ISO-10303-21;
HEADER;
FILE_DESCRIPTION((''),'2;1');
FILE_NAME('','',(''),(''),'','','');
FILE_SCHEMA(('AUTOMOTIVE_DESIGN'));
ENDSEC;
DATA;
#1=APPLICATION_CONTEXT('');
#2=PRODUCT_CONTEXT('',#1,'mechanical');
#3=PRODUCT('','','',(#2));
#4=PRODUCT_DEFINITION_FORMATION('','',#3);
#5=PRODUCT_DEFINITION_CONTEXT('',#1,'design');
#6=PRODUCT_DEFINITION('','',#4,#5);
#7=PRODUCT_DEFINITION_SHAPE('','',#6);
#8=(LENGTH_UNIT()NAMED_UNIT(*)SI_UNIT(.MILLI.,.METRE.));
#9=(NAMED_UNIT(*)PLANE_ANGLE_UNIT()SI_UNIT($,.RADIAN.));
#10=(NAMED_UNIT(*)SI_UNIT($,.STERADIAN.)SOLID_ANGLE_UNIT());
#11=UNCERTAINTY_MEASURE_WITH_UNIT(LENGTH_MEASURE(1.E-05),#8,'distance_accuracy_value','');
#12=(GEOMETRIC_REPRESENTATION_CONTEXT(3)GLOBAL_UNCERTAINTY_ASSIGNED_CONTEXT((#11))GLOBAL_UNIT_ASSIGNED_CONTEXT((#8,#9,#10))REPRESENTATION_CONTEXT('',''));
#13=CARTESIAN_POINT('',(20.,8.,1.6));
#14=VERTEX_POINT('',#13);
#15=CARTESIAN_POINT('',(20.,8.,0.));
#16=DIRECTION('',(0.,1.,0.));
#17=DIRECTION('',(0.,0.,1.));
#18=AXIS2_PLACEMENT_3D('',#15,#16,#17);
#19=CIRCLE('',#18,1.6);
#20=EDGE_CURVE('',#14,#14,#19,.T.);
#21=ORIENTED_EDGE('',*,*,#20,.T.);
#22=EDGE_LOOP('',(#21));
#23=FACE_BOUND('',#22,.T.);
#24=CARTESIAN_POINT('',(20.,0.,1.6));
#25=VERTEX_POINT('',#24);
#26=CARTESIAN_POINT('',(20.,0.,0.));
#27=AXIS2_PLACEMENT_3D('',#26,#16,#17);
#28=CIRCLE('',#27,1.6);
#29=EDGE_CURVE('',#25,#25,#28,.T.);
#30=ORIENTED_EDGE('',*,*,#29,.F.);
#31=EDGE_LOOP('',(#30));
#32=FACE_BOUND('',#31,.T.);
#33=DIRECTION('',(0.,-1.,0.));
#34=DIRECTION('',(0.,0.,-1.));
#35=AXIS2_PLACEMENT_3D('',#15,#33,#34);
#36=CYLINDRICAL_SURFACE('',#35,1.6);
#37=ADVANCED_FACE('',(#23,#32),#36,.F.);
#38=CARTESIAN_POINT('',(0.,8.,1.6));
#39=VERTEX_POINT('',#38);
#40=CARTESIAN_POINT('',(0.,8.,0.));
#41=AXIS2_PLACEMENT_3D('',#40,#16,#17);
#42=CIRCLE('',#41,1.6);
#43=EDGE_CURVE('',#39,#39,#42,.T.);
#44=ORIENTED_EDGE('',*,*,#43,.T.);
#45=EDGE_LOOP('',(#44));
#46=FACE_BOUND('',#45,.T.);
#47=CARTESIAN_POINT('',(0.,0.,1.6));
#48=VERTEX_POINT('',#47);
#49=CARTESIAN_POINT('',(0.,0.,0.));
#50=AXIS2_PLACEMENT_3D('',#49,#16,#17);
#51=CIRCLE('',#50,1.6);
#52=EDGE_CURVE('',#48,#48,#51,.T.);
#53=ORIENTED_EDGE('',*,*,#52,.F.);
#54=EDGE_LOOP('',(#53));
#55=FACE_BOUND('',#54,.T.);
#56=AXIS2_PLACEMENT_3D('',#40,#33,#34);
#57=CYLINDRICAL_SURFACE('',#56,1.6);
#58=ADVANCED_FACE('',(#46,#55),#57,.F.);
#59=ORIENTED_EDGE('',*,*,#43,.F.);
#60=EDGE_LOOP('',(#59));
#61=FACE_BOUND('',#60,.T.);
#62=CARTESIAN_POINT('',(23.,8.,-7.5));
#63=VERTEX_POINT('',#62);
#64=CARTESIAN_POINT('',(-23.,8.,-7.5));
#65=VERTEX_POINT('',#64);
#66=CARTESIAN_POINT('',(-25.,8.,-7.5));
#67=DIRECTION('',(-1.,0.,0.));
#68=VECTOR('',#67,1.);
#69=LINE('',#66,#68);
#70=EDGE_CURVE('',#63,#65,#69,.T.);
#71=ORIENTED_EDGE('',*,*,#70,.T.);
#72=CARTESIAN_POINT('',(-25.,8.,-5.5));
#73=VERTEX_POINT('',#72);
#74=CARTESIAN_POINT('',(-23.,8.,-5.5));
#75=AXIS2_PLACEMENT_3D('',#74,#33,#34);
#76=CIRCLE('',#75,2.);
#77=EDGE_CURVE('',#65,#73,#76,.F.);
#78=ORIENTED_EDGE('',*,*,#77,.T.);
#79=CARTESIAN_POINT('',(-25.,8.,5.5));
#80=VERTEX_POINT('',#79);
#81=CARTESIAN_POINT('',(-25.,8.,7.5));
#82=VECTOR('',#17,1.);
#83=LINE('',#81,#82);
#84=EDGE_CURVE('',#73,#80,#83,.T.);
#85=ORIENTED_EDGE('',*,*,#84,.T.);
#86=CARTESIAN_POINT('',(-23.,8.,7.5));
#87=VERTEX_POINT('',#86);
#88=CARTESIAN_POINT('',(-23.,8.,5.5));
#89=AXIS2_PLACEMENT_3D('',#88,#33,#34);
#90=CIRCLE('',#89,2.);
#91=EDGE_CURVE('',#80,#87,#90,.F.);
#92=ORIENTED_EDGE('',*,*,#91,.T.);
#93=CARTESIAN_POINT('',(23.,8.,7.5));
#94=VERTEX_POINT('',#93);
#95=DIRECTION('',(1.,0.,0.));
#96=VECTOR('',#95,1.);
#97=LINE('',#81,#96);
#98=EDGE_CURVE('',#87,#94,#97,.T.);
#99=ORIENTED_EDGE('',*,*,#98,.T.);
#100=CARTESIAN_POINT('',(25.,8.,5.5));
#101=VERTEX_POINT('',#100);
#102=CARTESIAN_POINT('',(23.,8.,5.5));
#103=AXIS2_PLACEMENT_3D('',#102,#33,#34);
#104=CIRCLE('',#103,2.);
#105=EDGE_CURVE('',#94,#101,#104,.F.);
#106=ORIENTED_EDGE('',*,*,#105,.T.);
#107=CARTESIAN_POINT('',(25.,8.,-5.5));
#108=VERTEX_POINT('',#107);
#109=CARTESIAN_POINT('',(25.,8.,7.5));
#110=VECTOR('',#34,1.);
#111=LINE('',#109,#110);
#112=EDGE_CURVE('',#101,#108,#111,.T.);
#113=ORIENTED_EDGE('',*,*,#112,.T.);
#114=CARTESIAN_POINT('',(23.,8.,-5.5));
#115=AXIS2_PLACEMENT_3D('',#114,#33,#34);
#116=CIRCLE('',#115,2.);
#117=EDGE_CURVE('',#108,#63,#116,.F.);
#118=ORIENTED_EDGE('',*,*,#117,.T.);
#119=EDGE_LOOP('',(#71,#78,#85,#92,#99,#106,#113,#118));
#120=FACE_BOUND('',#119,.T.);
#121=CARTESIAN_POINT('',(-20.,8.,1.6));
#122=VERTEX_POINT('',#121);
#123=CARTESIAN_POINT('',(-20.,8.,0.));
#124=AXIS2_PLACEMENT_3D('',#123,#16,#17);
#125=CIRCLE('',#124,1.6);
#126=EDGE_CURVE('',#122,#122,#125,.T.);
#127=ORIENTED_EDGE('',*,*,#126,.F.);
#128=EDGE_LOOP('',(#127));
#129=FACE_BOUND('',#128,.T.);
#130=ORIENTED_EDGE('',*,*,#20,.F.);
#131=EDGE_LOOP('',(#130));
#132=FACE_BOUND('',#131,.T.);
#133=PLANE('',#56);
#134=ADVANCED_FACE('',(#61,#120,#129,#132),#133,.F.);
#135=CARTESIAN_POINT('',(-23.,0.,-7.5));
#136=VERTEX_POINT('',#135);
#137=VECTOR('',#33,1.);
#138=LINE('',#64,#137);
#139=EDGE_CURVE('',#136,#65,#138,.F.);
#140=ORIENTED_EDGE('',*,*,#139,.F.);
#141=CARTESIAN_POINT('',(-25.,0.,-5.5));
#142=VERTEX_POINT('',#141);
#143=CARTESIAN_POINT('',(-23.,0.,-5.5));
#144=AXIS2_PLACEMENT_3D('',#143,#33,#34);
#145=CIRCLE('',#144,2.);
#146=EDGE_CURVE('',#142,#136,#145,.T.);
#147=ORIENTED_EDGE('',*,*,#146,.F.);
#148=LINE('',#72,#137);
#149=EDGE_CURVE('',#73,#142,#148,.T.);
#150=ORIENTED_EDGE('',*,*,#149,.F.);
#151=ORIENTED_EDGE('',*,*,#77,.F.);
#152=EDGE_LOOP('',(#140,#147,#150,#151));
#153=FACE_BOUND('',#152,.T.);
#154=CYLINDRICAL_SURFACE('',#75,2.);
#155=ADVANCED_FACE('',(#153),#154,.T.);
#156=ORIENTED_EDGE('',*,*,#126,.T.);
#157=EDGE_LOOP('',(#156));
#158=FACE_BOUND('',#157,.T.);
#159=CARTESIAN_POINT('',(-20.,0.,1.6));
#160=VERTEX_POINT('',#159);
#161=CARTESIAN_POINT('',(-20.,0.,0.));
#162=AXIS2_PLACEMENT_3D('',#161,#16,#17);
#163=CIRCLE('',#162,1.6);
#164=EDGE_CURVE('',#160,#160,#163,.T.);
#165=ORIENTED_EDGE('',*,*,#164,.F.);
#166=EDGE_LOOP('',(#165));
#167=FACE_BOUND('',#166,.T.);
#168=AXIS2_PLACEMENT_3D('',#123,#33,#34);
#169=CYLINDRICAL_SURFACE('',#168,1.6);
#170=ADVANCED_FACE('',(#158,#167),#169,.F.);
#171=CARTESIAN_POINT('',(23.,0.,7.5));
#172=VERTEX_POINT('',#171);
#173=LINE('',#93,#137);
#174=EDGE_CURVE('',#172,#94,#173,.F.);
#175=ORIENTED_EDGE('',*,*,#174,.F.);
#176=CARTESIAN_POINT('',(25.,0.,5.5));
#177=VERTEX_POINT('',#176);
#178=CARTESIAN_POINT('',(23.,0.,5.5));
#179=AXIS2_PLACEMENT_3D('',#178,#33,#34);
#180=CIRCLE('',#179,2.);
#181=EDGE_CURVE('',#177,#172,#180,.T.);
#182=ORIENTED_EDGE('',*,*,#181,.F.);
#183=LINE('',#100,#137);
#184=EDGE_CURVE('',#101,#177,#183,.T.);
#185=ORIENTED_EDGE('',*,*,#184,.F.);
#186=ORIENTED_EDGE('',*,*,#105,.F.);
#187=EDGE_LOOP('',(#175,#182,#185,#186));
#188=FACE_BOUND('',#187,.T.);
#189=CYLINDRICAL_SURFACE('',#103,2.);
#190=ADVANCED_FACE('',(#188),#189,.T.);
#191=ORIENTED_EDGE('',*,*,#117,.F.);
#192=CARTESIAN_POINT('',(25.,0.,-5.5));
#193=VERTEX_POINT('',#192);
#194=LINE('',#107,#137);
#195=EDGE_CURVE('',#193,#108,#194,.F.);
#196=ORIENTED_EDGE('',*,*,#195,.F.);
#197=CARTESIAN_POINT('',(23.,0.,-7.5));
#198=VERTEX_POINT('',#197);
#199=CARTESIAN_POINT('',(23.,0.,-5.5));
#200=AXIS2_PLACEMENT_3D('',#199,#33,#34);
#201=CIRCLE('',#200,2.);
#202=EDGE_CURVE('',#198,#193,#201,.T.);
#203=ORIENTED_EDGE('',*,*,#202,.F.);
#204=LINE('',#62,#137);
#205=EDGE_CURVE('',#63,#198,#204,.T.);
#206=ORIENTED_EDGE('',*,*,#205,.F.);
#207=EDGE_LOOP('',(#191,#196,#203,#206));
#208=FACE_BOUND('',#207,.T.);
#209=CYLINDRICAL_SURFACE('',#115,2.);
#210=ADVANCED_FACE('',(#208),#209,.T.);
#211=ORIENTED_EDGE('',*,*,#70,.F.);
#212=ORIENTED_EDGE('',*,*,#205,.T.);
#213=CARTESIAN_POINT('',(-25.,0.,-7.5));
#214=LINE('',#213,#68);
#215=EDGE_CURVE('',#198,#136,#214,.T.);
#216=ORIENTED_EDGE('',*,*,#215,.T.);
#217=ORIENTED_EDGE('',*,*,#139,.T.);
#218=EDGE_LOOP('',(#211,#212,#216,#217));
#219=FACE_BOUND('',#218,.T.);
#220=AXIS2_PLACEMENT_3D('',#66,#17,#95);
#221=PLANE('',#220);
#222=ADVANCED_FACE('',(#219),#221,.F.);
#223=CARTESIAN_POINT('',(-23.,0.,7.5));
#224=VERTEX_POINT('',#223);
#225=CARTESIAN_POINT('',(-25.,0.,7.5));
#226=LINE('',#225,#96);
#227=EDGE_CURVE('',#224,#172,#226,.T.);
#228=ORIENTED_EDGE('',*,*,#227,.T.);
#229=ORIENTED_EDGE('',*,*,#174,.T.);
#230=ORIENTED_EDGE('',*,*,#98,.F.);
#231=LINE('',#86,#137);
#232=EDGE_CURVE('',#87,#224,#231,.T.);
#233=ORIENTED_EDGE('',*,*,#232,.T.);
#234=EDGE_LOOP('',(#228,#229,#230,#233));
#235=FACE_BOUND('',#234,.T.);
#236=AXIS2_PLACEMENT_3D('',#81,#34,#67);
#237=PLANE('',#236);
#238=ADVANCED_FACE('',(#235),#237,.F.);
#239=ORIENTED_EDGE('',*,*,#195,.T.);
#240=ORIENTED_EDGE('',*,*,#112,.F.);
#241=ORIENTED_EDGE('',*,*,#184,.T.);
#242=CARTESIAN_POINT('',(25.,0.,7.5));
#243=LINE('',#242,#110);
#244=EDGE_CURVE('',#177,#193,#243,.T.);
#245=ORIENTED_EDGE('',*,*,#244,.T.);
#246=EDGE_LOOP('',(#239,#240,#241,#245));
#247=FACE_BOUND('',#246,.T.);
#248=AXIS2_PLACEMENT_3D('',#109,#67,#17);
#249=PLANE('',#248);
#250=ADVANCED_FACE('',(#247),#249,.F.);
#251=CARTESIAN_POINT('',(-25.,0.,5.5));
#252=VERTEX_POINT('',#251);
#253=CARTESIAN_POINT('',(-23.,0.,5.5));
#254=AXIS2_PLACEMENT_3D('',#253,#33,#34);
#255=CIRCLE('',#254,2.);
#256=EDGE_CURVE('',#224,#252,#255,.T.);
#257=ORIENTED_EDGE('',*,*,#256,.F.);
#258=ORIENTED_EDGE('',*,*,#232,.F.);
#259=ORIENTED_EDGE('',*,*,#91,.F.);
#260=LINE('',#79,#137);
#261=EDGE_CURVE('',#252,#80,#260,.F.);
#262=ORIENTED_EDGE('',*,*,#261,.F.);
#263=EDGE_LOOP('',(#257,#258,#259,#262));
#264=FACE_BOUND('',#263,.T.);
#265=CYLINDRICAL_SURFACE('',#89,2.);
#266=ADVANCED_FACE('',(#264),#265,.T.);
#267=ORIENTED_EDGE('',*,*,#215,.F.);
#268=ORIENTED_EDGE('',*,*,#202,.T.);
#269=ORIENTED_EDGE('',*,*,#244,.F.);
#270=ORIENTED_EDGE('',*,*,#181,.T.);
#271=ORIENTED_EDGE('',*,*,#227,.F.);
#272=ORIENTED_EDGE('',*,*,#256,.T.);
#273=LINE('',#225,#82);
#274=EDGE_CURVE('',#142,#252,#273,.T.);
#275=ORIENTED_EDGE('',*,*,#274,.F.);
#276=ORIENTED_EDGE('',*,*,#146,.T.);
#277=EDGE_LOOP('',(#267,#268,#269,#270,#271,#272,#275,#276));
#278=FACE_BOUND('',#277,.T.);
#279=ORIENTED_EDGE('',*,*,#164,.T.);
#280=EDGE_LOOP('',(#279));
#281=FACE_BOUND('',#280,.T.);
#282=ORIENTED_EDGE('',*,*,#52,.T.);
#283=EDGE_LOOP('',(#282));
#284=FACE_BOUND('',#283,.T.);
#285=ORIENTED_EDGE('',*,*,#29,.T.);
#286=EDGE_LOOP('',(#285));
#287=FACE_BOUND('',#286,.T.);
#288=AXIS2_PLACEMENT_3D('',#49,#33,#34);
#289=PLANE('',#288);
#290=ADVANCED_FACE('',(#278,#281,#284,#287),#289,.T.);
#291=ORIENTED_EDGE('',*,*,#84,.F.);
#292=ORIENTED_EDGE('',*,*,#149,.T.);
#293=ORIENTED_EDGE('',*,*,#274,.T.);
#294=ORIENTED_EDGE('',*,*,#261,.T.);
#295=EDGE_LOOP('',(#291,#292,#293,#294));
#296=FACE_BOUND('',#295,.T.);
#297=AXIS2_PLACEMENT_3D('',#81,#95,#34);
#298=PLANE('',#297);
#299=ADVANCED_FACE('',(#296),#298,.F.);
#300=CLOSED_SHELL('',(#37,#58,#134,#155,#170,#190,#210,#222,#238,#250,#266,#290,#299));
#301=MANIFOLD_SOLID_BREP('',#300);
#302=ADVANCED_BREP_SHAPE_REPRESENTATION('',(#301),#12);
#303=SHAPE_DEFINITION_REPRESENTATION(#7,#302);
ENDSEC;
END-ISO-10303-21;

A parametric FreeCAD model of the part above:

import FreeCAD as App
import Part
import Sketcher

V = App.Vector


def edges_at(feature, points):
    """Names of the edges that pass closest to the given points."""
    edges = feature.Shape.Edges
    near = lambda p: min(range(len(edges)), key=lambda i: edges[i].distToShape(Part.Vertex(*p))[0])
    return sorted({f"Edge{near(p) + 1}" for p in points})


def add_polygon(sketch, points):
    """Adds a closed chain of lines whose ends are joined by coincident constraints."""
    first, n = sketch.GeometryCount, len(points)
    for a, b in zip(points, points[1:] + points[:1]):
        sketch.addGeometry(Part.LineSegment(App.Vector(*a, 0), App.Vector(*b, 0)), False)
    for i in range(n):
        sketch.addConstraint(Sketcher.Constraint("Coincident", first + i, 2, first + (i + 1) % n, 1))

doc = App.newDocument("Part")
body = doc.addObject("PartDesign::Body", "Body")

# Sketch on XZ plane
sketch1 = body.newObject("Sketcher::SketchObject", "Sketch")
sketch1.AttachmentSupport = (doc.getObject("XZ_Plane"), [""])
sketch1.MapMode = "FlatFace"
add_polygon(sketch1, [(-25, -7.5), (-25, 7.5), (25, 7.5), (25, -7.5)])  # lines 0-3
sketch1.addGeometry(Part.Circle(V(-20, 0, 0), V(0, 0, 1), 1.6), False)  # 4
sketch1.addGeometry(Part.Circle(V(0, 0, 0), V(0, 0, 1), 1.6), False)  # 5
sketch1.addGeometry(Part.Circle(V(20, 0, 0), V(0, 0, 1), 1.6), False)  # 6
sketch1.addConstraint(Sketcher.Constraint("Vertical", 0))
sketch1.addConstraint(Sketcher.Constraint("Horizontal", 1))
sketch1.addConstraint(Sketcher.Constraint("Vertical", 2))
sketch1.addConstraint(Sketcher.Constraint("Horizontal", 3))
sketch1.addConstraint(Sketcher.Constraint("Coincident", 5, 3, -1, 1))
sketch1.addConstraint(Sketcher.Constraint("Equal", 4, 5))
sketch1.addConstraint(Sketcher.Constraint("Equal", 5, 6))
sketch1.addConstraint(Sketcher.Constraint("Symmetric", 4, 3, 6, 3, -1, 1))
sketch1.addConstraint(Sketcher.Constraint("Symmetric", 0, 2, 2, 2, -1, 1))
sketch1.addConstraint(Sketcher.Constraint("PointOnObject", 4, 3, -1))
sketch1.addConstraint(Sketcher.Constraint("Diameter", 4, 3.2))
sketch1.addConstraint(Sketcher.Constraint("DistanceX", 1, 1, 1, 2, 50.0))
sketch1.addConstraint(Sketcher.Constraint("DistanceY", 0, 1, 0, 2, 15.0))
sketch1.addConstraint(Sketcher.Constraint("DistanceX", 4, 3, -1, 1, 20.0))
pad1 = body.newObject("PartDesign::Pad", "Pad")
pad1.Profile = sketch1
pad1.Length = 8
pad1.Reversed = True
doc.recompute()

fillet = body.newObject("PartDesign::Fillet", "Fillet")
fillet.Base = (pad1, edges_at(pad1, [
    (25, 4, 7.5),
    (-25, 4, 7.5),
    (-25, 4, -7.5),
    (25, 4, -7.5),
]))
fillet.Radius = 2

doc.recompute()
